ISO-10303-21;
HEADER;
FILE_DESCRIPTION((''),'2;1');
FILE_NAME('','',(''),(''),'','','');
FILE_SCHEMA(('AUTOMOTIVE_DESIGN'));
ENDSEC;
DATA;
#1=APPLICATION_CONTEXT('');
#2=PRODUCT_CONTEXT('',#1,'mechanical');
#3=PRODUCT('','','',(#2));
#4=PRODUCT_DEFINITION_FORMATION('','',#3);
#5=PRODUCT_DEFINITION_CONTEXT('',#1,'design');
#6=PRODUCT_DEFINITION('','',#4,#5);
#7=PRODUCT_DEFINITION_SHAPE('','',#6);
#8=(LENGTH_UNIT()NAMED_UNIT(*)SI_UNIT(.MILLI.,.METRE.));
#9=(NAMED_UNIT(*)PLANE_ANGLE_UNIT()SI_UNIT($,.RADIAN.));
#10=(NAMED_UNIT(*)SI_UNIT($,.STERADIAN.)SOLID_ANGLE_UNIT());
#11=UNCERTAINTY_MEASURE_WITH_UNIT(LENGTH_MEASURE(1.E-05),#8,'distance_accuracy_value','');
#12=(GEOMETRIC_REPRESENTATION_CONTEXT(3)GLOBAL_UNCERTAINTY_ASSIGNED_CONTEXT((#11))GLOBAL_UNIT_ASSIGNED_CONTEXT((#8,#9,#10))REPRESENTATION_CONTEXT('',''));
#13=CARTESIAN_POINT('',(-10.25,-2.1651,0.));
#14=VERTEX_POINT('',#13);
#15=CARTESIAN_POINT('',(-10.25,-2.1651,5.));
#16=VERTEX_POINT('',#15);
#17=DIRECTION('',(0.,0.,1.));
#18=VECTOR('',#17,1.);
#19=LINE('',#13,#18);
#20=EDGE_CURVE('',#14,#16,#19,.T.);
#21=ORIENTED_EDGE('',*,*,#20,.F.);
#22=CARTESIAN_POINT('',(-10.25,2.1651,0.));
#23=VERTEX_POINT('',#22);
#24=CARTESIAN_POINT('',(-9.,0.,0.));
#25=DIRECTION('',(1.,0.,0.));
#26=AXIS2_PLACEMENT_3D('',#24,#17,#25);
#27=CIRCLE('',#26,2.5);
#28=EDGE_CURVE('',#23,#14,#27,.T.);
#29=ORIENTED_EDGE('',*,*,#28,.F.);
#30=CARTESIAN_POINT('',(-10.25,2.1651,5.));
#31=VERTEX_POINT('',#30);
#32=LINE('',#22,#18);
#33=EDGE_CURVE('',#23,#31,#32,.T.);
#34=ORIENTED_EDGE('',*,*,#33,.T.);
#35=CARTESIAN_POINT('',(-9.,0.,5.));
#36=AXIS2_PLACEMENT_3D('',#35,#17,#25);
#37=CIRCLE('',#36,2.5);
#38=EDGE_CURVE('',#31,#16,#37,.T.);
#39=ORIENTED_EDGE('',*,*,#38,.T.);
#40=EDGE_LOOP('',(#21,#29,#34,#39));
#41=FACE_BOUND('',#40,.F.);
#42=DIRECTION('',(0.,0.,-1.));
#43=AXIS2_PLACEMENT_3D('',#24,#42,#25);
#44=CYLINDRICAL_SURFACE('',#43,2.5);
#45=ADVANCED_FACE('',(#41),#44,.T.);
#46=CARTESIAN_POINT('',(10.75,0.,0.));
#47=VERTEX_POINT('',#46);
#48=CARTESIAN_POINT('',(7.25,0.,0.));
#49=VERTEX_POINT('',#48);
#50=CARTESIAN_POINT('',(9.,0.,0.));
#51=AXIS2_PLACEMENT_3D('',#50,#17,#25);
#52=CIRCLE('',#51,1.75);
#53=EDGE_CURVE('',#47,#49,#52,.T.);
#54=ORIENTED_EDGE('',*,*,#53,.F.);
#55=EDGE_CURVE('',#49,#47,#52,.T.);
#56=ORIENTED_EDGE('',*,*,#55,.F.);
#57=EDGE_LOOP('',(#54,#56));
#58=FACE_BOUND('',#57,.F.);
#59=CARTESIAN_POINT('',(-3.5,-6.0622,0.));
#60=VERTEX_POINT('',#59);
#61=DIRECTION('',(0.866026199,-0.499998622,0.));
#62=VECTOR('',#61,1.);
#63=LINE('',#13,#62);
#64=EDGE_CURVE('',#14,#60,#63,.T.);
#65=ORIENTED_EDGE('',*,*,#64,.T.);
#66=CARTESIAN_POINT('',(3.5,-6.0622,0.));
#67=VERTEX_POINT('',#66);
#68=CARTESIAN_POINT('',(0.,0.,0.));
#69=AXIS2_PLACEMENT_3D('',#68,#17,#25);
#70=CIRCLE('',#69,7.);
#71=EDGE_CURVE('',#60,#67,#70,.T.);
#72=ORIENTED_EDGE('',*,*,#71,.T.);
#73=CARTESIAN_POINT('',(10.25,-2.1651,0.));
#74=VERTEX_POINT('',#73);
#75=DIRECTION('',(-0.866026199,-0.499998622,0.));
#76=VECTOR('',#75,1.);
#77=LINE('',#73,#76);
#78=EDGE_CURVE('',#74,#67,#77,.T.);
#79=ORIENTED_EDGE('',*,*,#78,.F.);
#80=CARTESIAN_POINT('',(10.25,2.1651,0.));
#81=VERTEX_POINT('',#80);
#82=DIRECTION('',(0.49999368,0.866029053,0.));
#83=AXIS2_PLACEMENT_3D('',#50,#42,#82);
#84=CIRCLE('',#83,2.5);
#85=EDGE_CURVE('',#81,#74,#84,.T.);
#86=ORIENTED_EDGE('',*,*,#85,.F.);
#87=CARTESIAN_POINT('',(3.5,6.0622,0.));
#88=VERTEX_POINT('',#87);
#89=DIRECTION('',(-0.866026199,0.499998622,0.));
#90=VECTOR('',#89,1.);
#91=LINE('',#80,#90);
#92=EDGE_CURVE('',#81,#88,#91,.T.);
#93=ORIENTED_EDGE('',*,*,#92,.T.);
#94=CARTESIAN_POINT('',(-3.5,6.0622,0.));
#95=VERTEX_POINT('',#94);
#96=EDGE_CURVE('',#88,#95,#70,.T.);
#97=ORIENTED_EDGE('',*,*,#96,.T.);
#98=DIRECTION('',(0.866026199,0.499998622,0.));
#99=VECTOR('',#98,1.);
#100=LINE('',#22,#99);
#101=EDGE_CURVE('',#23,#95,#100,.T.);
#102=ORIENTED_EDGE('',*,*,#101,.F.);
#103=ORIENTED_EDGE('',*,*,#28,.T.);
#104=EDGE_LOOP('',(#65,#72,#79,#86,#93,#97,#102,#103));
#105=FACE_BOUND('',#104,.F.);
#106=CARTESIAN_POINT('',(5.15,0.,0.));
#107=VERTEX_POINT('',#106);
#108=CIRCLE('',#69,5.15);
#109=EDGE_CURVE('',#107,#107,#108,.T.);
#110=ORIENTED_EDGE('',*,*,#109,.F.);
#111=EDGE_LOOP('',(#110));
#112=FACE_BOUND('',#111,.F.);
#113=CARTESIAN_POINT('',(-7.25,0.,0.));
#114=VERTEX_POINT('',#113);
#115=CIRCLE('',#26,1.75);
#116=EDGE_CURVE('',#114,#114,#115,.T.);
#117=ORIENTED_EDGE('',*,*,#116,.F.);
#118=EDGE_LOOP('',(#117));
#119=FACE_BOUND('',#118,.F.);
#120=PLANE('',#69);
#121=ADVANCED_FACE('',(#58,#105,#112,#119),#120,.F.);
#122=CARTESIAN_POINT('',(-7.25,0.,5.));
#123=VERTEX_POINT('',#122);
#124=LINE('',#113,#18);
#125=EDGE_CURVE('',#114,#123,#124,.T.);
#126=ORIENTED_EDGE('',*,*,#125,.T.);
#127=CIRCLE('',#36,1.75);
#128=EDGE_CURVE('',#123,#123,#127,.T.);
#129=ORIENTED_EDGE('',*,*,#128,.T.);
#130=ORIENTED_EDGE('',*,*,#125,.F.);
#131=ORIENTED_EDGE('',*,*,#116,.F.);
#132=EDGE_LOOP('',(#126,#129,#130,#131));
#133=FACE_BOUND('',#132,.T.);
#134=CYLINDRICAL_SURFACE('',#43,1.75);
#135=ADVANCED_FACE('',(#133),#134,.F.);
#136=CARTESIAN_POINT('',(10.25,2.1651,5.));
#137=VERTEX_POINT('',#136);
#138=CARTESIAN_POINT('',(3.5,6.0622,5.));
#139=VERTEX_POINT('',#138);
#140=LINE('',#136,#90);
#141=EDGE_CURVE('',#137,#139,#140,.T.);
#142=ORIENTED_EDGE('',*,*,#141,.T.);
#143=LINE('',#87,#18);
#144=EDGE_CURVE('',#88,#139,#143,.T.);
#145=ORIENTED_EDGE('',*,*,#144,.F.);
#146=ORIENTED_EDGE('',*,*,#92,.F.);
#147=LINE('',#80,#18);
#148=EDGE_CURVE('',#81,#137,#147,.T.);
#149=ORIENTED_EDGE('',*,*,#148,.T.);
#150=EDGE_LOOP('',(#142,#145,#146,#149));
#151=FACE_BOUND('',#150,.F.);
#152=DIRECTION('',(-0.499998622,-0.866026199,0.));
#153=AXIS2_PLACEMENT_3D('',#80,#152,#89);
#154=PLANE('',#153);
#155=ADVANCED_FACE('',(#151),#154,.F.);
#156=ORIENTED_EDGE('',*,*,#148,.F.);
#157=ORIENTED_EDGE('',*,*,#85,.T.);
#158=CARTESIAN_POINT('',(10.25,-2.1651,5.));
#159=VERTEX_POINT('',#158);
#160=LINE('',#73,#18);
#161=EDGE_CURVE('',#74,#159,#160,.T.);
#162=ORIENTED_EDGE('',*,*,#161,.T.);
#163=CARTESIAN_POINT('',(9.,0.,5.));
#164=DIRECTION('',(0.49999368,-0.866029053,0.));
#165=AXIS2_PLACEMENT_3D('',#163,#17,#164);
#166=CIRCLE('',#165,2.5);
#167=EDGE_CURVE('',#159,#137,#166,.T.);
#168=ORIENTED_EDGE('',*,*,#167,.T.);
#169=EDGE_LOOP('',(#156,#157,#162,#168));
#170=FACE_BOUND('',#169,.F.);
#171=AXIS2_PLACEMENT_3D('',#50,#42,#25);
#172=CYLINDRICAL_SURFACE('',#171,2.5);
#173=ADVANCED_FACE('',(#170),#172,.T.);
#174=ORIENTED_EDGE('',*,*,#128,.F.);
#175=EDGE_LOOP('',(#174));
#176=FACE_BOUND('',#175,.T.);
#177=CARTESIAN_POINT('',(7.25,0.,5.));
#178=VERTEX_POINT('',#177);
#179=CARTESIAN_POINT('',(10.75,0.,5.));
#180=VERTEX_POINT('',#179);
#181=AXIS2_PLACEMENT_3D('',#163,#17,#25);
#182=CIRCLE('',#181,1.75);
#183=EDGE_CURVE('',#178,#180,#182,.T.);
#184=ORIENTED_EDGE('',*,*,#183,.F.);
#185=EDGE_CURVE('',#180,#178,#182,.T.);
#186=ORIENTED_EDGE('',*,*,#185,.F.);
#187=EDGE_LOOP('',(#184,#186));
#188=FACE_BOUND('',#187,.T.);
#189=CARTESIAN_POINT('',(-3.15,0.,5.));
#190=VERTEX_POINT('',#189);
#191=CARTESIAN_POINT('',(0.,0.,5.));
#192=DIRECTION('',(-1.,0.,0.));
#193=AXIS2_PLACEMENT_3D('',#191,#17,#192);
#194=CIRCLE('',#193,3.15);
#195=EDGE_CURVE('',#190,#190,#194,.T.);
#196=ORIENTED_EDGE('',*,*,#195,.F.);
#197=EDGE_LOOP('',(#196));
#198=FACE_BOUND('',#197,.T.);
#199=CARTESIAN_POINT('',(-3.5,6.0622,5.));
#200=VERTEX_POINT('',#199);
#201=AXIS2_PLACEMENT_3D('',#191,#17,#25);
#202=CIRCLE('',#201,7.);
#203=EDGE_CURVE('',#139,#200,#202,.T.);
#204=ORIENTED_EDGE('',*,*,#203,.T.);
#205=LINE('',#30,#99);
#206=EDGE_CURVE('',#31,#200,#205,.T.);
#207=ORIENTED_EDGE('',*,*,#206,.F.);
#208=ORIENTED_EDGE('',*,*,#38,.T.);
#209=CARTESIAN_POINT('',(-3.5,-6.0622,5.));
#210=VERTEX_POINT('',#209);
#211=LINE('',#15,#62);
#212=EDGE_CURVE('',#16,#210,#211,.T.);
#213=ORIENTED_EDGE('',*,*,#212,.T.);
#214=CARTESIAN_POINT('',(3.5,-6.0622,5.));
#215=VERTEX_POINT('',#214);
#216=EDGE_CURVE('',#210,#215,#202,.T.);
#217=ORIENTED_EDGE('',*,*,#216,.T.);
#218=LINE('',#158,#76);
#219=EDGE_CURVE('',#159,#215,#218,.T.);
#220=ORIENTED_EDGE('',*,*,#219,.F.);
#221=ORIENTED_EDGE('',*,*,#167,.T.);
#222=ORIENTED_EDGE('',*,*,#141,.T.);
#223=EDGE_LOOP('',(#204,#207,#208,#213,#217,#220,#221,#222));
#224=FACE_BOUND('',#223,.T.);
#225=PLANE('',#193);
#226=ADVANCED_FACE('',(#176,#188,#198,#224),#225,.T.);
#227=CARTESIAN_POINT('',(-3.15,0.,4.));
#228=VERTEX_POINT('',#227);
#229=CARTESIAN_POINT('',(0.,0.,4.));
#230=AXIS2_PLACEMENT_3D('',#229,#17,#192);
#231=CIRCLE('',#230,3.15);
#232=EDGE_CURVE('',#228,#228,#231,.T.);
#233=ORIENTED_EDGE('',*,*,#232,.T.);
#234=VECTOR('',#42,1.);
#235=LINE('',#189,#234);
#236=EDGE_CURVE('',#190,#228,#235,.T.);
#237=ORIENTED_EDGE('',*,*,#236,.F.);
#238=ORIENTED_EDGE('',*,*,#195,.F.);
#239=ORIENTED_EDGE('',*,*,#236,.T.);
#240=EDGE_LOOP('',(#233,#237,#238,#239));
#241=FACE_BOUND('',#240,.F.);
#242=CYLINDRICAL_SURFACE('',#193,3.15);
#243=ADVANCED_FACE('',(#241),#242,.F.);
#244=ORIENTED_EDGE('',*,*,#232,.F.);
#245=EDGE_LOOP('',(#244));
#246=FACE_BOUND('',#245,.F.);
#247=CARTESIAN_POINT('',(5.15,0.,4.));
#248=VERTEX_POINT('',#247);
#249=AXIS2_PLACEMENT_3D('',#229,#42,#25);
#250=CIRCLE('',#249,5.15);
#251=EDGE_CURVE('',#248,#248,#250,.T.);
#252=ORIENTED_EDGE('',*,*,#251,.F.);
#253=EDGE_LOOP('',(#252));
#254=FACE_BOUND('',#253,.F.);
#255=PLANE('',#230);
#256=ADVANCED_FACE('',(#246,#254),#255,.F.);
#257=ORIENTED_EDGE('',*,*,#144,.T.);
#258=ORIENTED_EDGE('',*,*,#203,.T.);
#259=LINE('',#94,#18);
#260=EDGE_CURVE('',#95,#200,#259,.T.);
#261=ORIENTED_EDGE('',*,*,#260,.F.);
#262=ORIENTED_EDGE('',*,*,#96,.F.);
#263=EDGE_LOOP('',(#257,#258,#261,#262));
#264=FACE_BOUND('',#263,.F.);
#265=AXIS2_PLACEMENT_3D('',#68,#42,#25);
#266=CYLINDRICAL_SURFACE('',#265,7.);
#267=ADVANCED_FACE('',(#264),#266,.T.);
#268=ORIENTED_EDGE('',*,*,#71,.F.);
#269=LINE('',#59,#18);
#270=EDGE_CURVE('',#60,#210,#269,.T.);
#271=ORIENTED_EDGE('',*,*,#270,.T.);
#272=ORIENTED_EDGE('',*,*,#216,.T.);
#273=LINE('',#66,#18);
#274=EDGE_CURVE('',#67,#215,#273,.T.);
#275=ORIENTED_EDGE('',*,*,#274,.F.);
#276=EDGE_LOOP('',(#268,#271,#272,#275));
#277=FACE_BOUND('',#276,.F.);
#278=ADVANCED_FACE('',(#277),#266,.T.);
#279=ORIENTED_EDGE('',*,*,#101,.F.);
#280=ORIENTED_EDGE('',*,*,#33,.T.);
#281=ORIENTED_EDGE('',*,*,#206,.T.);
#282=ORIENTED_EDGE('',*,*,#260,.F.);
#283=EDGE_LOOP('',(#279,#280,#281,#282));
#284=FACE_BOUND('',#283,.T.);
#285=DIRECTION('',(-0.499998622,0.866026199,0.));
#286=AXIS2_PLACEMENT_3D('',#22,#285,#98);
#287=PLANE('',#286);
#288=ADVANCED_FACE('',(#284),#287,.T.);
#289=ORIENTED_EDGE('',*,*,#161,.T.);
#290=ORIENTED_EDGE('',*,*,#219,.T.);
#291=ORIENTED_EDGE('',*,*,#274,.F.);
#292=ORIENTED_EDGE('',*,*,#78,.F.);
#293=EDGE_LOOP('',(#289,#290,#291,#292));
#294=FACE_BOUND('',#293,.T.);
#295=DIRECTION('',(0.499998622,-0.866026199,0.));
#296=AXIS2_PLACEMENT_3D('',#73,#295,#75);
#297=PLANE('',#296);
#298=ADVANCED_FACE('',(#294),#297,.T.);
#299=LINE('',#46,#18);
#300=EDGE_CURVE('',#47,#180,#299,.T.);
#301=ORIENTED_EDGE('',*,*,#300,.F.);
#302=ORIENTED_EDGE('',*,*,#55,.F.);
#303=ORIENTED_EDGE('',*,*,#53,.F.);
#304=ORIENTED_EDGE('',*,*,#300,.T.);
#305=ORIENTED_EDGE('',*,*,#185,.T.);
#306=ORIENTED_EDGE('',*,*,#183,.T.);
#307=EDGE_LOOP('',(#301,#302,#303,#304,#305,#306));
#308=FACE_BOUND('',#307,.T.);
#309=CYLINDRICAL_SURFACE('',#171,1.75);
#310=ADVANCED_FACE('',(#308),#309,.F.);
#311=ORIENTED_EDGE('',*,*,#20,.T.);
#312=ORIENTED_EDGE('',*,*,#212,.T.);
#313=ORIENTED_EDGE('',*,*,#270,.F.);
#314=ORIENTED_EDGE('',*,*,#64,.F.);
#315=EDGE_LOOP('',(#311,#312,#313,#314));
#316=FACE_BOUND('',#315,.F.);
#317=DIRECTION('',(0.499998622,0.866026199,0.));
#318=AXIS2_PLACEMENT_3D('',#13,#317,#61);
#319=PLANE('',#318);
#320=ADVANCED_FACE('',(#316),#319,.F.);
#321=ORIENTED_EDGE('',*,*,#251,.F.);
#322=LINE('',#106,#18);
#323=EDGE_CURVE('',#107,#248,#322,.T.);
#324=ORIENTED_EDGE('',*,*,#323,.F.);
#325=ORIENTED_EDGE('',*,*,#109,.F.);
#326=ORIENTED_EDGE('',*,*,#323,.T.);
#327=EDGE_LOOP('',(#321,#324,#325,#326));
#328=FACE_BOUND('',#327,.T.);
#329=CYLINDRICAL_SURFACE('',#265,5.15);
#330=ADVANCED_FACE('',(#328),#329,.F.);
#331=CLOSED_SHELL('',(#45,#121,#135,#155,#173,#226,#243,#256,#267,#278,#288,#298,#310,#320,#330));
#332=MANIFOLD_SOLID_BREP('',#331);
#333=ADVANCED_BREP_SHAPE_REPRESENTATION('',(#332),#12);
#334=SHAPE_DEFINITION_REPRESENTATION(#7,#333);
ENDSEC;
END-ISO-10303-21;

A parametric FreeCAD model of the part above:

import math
import FreeCAD as App
import Part
import Sketcher

V = App.Vector

doc = App.newDocument("Part")
body = doc.addObject("PartDesign::Body", "Body")

# Sketch on XY plane
sketch1 = body.newObject("Sketcher::SketchObject", "Sketch")
sketch1.AttachmentSupport = (doc.getObject("XY_Plane"), [""])
sketch1.MapMode = "FlatFace"
sketch1.addGeometry(Part.ArcOfCircle(Part.Circle(V(0, 0, 0), V(0, 0, 1), 7), math.radians(-120), math.radians(-60)), False)
sketch1.addGeometry(Part.LineSegment(V(3.5, -6.1, 0), V(10.2, -2.2, 0)), False)
sketch1.addGeometry(Part.ArcOfCircle(Part.Circle(V(9, 0, 0), V(0, 0, 1), 2.5), math.radians(-60), math.radians(60)), False)
sketch1.addGeometry(Part.LineSegment(V(10.2, 2.2, 0), V(3.5, 6.1, 0)), False)
sketch1.addGeometry(Part.ArcOfCircle(Part.Circle(V(0, 0, 0), V(0, 0, 1), 7), math.radians(60), math.radians(120)), False)
sketch1.addGeometry(Part.LineSegment(V(-3.5, 6.1, 0), V(-10.2, 2.2, 0)), False)
sketch1.addGeometry(Part.ArcOfCircle(Part.Circle(V(-9, 0, 0), V(0, 0, 1), 2.5), math.radians(120), math.radians(240)), False)
sketch1.addGeometry(Part.LineSegment(V(-10.2, -2.2, 0), V(-3.5, -6.1, 0)), False)
sketch1.addGeometry(Part.Circle(V(0, 0, 0), V(0, 0, 1), 5.2), False)
sketch1.addGeometry(Part.Circle(V(9, 0, 0), V(0, 0, 1), 1.8), False)
sketch1.addGeometry(Part.Circle(V(-9, 0, 0), V(0, 0, 1), 1.8), False)
sketch1.addConstraint(Sketcher.Constraint("Tangent", 0, 2, 1, 1))
sketch1.addConstraint(Sketcher.Constraint("Tangent", 1, 2, 2, 1))
sketch1.addConstraint(Sketcher.Constraint("Tangent", 2, 2, 3, 1))
sketch1.addConstraint(Sketcher.Constraint("Tangent", 3, 2, 4, 1))
sketch1.addConstraint(Sketcher.Constraint("Tangent", 4, 2, 5, 1))
sketch1.addConstraint(Sketcher.Constraint("Tangent", 5, 2, 6, 1))
sketch1.addConstraint(Sketcher.Constraint("Tangent", 6, 2, 7, 1))
sketch1.addConstraint(Sketcher.Constraint("Tangent", 7, 2, 0, 1))
sketch1.addConstraint(Sketcher.Constraint("Coincident", 0, 3, -1, 1))
sketch1.addConstraint(Sketcher.Constraint("Coincident", 4, 3, -1, 1))
sketch1.addConstraint(Sketcher.Constraint("Coincident", 8, 3, -1, 1))
sketch1.addConstraint(Sketcher.Constraint("Coincident", 9, 3, 2, 3))
sketch1.addConstraint(Sketcher.Constraint("Coincident", 10, 3, 6, 3))
sketch1.addConstraint(Sketcher.Constraint("Equal", 0, 4))
sketch1.addConstraint(Sketcher.Constraint("Equal", 2, 6))
sketch1.addConstraint(Sketcher.Constraint("Equal", 9, 10))
sketch1.addConstraint(Sketcher.Constraint("Symmetric", 2, 3, 6, 3, -1, 1))
sketch1.addConstraint(Sketcher.Constraint("PointOnObject", 2, 3, -1))
sketch1.addConstraint(Sketcher.Constraint("Radius", 0, 7.0))
sketch1.addConstraint(Sketcher.Constraint("Diameter", 8, 10.3))
sketch1.addConstraint(Sketcher.Constraint("Diameter", 9, 3.5))
sketch1.addConstraint(Sketcher.Constraint("Radius", 2, 2.5))
sketch1.addConstraint(Sketcher.Constraint("DistanceX", -1, 1, 2, 3, 9.0))
pad1 = body.newObject("PartDesign::Pad", "Pad")
pad1.Profile = sketch1
pad1.Length = 5

# Sketch on XY plane
sketch2 = body.newObject("Sketcher::SketchObject", "Sketch001")
sketch2.AttachmentSupport = (doc.getObject("XY_Plane"), [""])
sketch2.MapMode = "FlatFace"
sketch2.AttachmentOffset = App.Placement(V(0, 0, 5), App.Rotation())
sketch2.addGeometry(Part.Circle(V(0, 0, 0), V(0, 0, 1), 5.2), False)
sketch2.addGeometry(Part.Circle(V(0, 0, 0), V(0, 0, 1), 3.1), False)
sketch2.addConstraint(Sketcher.Constraint("Coincident", 0, 3, -1, 1))
sketch2.addConstraint(Sketcher.Constraint("Coincident", 1, 3, -1, 1))
sketch2.addConstraint(Sketcher.Constraint("Diameter", 0, 10.3))
sketch2.addConstraint(Sketcher.Constraint("Diameter", 1, 6.3))
pad2 = body.newObject("PartDesign::Pad", "Pad001")
pad2.Profile = sketch2
pad2.Length = 1
pad2.Reversed = True

doc.recompute()
